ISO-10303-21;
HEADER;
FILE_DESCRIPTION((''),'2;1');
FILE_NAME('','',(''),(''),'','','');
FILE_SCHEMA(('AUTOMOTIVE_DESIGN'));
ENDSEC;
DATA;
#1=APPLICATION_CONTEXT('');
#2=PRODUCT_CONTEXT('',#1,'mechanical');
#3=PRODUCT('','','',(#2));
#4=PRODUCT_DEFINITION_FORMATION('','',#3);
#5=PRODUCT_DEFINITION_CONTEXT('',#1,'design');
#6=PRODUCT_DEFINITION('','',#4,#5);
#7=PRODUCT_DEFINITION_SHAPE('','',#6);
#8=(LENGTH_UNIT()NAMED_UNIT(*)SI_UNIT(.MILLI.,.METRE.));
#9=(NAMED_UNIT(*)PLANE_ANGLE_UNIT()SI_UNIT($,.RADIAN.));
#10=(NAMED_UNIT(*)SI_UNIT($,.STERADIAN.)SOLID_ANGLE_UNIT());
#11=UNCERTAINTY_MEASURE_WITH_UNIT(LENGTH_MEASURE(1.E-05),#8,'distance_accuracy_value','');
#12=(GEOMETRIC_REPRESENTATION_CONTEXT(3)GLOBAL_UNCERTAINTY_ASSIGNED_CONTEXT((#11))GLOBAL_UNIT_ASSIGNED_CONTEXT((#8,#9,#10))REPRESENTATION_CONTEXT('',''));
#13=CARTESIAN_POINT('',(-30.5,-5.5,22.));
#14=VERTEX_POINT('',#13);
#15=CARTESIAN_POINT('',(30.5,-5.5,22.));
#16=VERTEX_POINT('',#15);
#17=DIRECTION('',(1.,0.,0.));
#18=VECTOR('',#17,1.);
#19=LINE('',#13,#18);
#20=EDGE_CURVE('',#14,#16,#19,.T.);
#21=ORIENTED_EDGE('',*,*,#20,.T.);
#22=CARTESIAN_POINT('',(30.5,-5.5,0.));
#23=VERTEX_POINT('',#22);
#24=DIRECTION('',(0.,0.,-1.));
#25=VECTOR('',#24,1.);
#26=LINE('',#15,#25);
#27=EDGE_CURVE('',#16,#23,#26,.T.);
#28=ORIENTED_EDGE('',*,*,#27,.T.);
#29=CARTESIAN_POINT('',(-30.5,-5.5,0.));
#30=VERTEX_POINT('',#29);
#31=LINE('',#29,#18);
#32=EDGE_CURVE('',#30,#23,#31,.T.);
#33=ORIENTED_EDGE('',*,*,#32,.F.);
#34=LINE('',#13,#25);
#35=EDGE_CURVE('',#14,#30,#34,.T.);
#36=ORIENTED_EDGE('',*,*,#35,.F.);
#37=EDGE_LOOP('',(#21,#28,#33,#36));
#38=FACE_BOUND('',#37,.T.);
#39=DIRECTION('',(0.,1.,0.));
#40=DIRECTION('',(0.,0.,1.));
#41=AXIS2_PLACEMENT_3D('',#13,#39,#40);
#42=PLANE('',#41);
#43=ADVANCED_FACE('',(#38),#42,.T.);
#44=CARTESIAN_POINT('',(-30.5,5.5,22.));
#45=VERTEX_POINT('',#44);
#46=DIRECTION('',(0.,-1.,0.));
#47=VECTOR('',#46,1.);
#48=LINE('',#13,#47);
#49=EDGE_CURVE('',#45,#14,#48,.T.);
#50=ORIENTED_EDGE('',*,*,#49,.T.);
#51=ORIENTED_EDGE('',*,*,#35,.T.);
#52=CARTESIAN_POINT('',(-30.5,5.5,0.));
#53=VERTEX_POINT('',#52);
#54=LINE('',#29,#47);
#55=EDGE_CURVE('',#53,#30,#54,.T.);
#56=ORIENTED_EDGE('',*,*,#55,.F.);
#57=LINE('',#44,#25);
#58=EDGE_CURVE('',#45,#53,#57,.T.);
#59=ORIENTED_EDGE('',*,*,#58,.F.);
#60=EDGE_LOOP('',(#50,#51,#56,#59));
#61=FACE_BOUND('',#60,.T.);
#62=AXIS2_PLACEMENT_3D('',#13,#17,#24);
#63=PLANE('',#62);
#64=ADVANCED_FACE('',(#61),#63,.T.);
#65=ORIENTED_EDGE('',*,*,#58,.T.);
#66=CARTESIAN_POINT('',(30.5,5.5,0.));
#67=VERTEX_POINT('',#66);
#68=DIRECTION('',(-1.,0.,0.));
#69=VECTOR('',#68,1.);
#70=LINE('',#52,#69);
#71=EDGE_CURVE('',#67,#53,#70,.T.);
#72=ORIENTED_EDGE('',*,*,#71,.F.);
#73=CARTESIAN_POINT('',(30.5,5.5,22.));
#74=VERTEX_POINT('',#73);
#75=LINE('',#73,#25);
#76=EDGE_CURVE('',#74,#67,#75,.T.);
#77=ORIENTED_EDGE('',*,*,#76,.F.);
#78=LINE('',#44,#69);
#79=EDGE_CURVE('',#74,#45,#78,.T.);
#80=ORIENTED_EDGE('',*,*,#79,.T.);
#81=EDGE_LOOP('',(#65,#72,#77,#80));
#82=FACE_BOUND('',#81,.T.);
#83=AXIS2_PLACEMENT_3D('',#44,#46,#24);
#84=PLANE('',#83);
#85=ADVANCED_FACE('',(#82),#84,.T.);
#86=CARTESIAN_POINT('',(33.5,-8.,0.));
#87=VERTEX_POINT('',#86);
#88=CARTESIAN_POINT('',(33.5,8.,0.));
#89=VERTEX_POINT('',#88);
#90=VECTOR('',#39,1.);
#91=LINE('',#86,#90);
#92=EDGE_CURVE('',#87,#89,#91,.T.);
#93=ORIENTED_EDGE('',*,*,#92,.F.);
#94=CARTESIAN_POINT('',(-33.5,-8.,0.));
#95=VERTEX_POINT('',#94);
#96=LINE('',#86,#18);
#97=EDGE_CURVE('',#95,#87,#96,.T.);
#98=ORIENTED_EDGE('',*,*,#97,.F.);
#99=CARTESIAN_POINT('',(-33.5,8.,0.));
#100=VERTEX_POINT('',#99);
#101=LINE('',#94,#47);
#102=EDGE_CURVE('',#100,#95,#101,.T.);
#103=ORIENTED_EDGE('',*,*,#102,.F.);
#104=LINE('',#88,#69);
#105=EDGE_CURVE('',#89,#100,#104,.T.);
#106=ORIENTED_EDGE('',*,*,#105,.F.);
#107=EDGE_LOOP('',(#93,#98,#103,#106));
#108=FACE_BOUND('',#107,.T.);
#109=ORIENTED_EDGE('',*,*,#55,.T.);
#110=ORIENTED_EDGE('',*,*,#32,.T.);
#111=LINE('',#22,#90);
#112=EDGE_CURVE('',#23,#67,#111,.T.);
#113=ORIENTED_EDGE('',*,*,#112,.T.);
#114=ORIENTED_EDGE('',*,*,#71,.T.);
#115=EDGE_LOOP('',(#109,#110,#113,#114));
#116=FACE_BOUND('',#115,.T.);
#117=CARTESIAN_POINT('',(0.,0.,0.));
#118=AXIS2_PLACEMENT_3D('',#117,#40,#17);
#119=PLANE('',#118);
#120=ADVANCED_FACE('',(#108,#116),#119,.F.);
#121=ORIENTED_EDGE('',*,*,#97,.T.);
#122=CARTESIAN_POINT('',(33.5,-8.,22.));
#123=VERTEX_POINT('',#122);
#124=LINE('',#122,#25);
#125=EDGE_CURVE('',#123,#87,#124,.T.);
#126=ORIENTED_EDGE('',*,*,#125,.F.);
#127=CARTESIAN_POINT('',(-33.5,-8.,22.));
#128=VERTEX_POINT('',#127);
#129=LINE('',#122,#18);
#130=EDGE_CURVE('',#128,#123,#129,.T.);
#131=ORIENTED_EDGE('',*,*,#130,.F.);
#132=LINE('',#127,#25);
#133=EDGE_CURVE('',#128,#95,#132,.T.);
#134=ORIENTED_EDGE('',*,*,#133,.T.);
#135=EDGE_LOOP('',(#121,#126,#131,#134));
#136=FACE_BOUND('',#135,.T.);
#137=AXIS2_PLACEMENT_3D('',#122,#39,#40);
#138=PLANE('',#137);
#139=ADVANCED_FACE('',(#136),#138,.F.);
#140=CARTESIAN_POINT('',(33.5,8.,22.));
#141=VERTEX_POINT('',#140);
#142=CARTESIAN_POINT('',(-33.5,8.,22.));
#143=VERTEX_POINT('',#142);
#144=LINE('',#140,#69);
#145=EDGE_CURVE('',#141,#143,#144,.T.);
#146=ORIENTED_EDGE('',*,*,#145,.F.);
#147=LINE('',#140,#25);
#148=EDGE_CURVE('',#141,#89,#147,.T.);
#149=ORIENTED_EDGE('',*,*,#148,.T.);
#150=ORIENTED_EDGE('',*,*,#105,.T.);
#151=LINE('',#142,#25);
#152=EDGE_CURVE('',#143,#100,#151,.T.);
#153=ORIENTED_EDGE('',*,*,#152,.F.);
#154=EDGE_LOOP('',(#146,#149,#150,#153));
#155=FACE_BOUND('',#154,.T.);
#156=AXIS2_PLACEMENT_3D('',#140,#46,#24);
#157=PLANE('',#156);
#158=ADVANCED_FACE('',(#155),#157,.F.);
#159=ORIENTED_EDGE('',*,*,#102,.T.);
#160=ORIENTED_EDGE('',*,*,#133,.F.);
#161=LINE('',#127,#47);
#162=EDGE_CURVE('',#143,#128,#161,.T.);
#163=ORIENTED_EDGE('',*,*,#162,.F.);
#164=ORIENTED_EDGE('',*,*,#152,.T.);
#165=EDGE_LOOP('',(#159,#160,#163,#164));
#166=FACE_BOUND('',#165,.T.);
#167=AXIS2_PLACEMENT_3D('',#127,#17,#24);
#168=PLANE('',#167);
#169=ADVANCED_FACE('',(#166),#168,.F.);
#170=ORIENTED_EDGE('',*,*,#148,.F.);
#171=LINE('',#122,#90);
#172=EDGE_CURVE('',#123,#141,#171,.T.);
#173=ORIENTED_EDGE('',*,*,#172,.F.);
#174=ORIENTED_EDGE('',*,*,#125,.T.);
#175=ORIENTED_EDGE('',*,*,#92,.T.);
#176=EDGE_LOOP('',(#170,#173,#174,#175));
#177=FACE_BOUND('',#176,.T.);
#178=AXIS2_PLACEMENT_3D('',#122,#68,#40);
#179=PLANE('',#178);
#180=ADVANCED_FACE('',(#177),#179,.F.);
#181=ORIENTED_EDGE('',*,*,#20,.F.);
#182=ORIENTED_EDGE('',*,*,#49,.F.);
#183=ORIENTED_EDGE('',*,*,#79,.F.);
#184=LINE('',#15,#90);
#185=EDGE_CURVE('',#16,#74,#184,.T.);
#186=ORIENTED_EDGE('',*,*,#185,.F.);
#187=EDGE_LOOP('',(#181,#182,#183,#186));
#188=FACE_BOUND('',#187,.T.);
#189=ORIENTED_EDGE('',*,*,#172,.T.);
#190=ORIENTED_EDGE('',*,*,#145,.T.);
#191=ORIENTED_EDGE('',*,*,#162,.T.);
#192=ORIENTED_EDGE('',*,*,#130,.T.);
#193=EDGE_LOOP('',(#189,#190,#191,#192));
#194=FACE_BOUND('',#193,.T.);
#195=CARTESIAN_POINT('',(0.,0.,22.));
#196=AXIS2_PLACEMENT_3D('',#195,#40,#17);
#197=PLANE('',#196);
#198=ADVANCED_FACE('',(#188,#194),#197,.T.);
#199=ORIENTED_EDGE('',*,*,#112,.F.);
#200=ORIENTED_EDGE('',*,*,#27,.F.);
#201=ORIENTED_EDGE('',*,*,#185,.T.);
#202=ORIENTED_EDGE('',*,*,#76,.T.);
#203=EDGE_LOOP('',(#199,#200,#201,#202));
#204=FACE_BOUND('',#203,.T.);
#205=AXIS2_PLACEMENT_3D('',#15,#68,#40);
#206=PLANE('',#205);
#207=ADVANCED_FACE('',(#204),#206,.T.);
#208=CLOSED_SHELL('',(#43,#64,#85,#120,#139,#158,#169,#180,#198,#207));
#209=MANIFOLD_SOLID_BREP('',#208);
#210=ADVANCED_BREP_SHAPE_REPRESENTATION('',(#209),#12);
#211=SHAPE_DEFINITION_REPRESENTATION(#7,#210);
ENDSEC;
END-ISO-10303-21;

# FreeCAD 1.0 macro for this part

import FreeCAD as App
import Part
import Sketcher

V = App.Vector

doc = App.newDocument("Part")
body = doc.addObject("PartDesign::Body", "Body")

sketch1 = body.newObject("Sketcher::SketchObject", "Sketch")
sketch1.AttachmentSupport = (doc.getObject("XY_Plane"), [""])
sketch1.MapMode = "FlatFace"
sketch1.addGeometry(Part.LineSegment(V(-33.5, 8, 0), V(-33.5, -8, 0)), False)
sketch1.addGeometry(Part.LineSegment(V(-33.5, -8, 0), V(33.5, -8, 0)), False)
sketch1.addGeometry(Part.LineSegment(V(33.5, -8, 0), V(33.5, 8, 0)), False)
sketch1.addGeometry(Part.LineSegment(V(33.5, 8, 0), V(-33.5, 8, 0)), False)
sketch1.addGeometry(Part.LineSegment(V(30.5, -5.5, 0), V(-30.5, -5.5, 0)), False)
sketch1.addGeometry(Part.LineSegment(V(-30.5, -5.5, 0), V(-30.5, 5.5, 0)), False)
sketch1.addGeometry(Part.LineSegment(V(-30.5, 5.5, 0), V(30.5, 5.5, 0)), False)
sketch1.addGeometry(Part.LineSegment(V(30.5, 5.5, 0), V(30.5, -5.5, 0)), False)
sketch1.addConstraint(Sketcher.Constraint("Coincident", 0, 2, 1, 1))
sketch1.addConstraint(Sketcher.Constraint("Coincident", 1, 2, 2, 1))
sketch1.addConstraint(Sketcher.Constraint("Coincident", 2, 2, 3, 1))
sketch1.addConstraint(Sketcher.Constraint("Coincident", 3, 2, 0, 1))
sketch1.addConstraint(Sketcher.Constraint("Coincident", 4, 2, 5, 1))
sketch1.addConstraint(Sketcher.Constraint("Coincident", 5, 2, 6, 1))
sketch1.addConstraint(Sketcher.Constraint("Coincident", 6, 2, 7, 1))
sketch1.addConstraint(Sketcher.Constraint("Coincident", 7, 2, 4, 1))
sketch1.addConstraint(Sketcher.Constraint("Vertical", 0))
sketch1.addConstraint(Sketcher.Constraint("Horizontal", 1))
sketch1.addConstraint(Sketcher.Constraint("Vertical", 2))
sketch1.addConstraint(Sketcher.Constraint("Horizontal", 3))
sketch1.addConstraint(Sketcher.Constraint("Horizontal", 4))
sketch1.addConstraint(Sketcher.Constraint("Vertical", 5))
sketch1.addConstraint(Sketcher.Constraint("Horizontal", 6))
sketch1.addConstraint(Sketcher.Constraint("Vertical", 7))
sketch1.addConstraint(Sketcher.Constraint("Symmetric", 0, 2, 2, 2, -1, 1))
sketch1.addConstraint(Sketcher.Constraint("Symmetric", 4, 2, 6, 2, -1, 1))
sketch1.addConstraint(Sketcher.Constraint("DistanceX", 1, 1, 1, 2, 67.0))
sketch1.addConstraint(Sketcher.Constraint("DistanceX", 4, 2, 4, 1, 61.0))
sketch1.addConstraint(Sketcher.Constraint("DistanceY", 0, 2, 0, 1, 16.0))
sketch1.addConstraint(Sketcher.Constraint("DistanceY", 5, 1, 5, 2, 11.0))
pad1 = body.newObject("PartDesign::Pad", "Pad")
pad1.Profile = sketch1
pad1.Length = 22

doc.recompute()
